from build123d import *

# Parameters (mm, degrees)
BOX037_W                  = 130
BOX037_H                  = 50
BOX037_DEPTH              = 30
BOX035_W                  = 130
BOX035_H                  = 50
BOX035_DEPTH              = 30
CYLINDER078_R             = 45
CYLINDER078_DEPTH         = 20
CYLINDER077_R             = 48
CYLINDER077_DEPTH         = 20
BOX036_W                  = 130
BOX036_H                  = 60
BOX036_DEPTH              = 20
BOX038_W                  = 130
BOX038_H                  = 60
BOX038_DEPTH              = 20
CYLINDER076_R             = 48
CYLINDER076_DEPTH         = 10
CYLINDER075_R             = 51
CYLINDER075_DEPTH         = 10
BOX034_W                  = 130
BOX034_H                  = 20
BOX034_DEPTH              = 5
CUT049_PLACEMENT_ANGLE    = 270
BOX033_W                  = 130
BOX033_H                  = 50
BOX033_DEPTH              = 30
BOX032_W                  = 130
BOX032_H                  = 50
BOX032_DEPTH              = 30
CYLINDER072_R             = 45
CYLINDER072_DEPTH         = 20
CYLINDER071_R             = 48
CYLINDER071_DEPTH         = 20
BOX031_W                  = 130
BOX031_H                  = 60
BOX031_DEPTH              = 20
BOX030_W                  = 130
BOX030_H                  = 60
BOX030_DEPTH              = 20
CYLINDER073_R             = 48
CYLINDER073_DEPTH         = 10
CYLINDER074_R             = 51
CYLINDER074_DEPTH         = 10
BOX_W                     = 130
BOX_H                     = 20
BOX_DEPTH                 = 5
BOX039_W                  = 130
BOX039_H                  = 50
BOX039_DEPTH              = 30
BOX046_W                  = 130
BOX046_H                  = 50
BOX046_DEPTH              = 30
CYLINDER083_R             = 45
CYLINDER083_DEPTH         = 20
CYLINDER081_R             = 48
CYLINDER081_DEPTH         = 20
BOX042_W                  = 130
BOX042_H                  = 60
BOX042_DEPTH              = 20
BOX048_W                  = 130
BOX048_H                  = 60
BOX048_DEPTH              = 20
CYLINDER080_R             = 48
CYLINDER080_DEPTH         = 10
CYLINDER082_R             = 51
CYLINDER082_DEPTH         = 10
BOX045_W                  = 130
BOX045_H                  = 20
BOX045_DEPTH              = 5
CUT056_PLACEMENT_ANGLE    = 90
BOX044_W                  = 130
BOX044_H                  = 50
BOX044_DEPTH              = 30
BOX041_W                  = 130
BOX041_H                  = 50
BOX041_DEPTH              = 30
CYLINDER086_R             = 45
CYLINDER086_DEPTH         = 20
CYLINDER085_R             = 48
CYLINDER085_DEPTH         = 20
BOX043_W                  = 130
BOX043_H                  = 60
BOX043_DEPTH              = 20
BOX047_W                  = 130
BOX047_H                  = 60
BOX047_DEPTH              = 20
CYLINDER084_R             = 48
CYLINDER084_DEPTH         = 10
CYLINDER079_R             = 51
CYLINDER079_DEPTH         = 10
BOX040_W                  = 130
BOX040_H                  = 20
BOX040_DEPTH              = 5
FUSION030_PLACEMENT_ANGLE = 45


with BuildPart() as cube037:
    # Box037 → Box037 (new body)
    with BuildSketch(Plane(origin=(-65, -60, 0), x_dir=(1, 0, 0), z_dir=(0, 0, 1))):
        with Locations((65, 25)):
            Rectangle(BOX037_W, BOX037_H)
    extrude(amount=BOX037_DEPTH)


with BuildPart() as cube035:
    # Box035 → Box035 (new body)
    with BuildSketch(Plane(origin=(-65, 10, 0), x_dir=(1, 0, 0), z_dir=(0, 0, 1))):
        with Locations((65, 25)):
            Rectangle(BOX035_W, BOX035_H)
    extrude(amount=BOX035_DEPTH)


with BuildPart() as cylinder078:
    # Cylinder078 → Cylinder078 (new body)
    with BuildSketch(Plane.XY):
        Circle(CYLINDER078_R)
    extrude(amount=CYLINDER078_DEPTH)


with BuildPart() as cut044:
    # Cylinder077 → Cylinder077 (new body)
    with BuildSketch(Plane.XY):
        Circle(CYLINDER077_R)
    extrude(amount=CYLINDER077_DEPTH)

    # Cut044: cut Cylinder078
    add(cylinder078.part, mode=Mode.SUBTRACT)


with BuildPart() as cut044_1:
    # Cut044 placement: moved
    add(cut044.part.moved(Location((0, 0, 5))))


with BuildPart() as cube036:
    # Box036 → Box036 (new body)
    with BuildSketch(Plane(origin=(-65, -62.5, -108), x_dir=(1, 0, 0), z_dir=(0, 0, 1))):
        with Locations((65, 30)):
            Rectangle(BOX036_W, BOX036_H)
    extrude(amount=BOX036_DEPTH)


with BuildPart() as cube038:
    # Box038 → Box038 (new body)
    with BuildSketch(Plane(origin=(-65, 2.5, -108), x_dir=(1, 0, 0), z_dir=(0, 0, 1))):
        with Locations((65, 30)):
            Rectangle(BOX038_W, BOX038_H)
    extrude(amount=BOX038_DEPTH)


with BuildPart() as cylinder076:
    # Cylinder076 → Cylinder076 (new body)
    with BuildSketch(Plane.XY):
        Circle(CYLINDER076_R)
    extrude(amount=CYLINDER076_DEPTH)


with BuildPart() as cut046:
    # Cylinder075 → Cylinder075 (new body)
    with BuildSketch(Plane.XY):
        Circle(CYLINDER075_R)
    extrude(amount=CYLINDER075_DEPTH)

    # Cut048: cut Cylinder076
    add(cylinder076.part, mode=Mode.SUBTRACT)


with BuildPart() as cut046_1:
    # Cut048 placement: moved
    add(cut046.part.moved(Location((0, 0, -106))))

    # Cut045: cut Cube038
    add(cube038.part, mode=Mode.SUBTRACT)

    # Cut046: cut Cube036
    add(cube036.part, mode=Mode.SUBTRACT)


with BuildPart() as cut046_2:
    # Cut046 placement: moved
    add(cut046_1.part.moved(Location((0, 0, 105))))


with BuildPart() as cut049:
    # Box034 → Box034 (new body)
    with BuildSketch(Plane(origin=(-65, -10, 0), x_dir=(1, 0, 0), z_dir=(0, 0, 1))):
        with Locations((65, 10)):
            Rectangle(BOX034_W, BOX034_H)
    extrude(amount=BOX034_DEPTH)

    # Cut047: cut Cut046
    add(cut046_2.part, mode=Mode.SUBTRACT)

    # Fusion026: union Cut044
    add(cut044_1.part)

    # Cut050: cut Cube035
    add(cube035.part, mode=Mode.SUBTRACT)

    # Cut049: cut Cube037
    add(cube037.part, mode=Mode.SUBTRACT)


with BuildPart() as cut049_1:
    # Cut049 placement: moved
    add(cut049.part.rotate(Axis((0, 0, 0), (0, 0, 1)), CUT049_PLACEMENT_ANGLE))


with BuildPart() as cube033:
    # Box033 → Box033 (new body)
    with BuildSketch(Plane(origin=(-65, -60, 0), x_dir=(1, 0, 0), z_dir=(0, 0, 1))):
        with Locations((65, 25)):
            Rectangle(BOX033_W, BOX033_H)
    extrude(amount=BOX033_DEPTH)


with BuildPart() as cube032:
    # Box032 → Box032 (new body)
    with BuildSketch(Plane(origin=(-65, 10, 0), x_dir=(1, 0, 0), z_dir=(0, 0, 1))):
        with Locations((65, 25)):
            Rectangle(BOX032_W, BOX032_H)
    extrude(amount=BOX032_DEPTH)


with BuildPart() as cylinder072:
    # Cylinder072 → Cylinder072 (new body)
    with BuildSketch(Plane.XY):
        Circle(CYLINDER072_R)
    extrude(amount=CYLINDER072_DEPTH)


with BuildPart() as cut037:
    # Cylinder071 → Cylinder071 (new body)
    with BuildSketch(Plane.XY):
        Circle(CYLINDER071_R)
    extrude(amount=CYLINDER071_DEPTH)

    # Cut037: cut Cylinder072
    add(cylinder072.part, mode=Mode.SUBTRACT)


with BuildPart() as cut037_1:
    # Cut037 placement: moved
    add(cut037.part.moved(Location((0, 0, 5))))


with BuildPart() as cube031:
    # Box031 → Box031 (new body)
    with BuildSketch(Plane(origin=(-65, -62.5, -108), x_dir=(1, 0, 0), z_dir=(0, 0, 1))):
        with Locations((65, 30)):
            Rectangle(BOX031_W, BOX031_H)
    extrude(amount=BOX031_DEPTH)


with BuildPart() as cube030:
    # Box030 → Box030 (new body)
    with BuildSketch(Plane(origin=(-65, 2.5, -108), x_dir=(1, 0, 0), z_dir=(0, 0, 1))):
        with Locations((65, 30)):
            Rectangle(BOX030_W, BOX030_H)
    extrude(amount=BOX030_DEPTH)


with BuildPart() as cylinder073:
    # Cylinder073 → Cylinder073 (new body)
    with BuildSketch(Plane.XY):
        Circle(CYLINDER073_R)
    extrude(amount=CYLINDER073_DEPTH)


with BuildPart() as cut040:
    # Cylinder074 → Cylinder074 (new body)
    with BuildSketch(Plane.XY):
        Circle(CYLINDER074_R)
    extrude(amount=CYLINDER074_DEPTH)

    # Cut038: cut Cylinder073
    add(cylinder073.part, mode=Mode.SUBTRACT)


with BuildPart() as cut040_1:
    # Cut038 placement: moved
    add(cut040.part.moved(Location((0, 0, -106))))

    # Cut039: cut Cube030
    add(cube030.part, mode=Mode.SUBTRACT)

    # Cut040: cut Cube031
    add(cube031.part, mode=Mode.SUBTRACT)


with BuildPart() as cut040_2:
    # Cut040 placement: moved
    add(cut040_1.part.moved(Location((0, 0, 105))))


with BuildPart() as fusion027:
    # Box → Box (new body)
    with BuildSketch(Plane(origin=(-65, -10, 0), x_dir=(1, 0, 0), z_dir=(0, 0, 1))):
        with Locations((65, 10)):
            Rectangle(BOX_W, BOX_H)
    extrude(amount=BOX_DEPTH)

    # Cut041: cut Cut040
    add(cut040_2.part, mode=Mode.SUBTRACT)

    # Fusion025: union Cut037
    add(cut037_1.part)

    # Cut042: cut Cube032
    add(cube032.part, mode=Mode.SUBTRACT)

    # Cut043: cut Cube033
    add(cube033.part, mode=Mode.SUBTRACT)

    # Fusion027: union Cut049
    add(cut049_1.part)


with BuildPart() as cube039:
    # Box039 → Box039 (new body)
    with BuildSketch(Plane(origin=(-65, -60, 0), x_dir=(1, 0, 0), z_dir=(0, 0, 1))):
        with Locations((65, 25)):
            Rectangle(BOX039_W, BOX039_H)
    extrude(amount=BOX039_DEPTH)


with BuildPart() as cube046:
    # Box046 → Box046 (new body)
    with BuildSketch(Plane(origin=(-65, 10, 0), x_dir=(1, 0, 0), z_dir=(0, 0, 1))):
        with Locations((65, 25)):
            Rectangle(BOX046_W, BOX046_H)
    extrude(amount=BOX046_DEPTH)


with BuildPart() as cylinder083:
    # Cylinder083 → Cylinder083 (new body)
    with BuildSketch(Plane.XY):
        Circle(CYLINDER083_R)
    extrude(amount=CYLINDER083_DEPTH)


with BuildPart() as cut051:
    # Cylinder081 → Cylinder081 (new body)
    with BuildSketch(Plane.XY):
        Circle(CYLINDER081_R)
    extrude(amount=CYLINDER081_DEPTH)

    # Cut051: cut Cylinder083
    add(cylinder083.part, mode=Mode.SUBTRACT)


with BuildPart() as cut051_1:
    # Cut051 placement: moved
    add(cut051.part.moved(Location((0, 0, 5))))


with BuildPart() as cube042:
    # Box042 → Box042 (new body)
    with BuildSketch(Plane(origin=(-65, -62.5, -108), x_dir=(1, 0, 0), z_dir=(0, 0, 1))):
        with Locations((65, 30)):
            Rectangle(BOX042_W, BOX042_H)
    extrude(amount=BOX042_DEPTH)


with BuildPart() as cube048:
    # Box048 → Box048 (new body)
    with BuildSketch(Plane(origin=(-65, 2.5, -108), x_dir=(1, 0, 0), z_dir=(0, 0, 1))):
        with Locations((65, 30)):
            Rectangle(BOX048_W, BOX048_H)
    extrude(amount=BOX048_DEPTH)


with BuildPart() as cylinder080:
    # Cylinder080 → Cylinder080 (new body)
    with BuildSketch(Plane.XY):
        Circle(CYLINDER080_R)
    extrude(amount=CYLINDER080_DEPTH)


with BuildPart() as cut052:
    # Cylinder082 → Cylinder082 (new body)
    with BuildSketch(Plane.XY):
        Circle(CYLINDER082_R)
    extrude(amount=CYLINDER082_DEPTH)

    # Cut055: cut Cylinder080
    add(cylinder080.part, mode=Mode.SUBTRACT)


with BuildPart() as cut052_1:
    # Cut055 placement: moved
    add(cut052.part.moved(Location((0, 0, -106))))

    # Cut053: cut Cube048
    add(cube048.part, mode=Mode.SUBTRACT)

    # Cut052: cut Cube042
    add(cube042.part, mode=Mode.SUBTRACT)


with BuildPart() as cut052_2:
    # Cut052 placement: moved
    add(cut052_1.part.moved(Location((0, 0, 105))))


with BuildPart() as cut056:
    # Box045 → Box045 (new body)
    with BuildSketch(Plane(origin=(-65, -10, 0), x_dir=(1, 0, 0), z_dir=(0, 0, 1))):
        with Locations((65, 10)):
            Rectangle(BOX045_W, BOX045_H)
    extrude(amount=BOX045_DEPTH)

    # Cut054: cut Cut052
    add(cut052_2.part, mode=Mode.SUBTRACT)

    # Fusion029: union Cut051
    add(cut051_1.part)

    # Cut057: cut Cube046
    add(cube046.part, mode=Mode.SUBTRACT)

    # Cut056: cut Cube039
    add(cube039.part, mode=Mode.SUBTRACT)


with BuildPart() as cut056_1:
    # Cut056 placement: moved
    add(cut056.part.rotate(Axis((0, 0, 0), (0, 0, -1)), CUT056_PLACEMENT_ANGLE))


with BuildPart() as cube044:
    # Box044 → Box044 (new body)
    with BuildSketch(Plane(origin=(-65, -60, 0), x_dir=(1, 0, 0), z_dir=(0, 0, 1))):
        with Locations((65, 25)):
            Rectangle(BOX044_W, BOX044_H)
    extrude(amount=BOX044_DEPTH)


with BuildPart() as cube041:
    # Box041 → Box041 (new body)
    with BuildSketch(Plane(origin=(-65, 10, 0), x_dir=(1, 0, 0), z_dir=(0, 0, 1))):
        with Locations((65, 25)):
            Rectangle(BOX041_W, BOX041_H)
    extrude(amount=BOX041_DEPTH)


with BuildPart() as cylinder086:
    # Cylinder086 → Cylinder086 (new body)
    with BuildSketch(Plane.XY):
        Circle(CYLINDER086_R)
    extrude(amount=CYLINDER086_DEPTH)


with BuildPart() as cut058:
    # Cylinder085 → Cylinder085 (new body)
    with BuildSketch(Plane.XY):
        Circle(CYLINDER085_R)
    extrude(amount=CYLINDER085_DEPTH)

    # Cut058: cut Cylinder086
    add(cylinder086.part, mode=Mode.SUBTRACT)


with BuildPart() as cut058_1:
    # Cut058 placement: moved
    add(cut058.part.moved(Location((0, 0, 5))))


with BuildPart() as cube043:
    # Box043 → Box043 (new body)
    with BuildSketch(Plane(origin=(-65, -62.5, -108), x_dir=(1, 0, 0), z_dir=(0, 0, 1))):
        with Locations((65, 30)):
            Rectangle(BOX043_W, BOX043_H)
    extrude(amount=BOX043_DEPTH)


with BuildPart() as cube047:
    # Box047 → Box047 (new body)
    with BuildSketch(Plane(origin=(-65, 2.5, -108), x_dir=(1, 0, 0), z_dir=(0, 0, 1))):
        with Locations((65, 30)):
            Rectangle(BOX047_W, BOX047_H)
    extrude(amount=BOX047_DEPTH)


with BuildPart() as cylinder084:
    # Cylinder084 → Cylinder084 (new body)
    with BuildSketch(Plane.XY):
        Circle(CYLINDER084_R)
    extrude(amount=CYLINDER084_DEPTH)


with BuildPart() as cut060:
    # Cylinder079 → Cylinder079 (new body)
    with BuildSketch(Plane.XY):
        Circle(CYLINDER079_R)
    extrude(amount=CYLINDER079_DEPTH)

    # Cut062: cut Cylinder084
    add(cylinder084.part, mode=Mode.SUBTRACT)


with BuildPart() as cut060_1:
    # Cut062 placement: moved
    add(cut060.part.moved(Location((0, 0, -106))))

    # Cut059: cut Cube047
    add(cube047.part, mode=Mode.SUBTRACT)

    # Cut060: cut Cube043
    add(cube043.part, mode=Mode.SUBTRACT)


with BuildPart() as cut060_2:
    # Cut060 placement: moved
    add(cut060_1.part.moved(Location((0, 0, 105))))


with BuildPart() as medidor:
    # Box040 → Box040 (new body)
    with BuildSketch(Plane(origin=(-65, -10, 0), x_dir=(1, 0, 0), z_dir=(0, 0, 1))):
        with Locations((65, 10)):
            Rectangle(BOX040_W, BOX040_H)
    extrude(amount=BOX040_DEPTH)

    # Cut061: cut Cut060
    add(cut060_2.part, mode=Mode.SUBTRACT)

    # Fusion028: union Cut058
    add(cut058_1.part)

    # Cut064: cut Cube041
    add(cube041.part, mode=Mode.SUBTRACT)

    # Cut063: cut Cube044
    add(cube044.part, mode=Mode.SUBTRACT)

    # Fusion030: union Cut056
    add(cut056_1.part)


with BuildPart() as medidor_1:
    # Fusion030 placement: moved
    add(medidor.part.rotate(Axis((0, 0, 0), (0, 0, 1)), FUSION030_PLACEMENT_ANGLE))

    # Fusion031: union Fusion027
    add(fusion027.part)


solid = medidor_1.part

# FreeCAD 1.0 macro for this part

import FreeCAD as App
import Part
import Sketcher

doc = App.newDocument("Part")
body = doc.addObject("PartDesign::Body", "Body")

sketch1 = body.newObject("Sketcher::SketchObject", "Sketch")
sketch1.AttachmentSupport = (doc.getObject("XY_Plane"), [""])
sketch1.MapMode = "FlatFace"
sketch1.addGeometry([
    Part.LineSegment(App.Vector(-65, -10, 0), App.Vector(-65, -60, 0)),
    Part.LineSegment(App.Vector(-65, -60, 0), App.Vector(65, -60, 0)),
    Part.LineSegment(App.Vector(65, -60, 0), App.Vector(65, -10, 0)),
    Part.LineSegment(App.Vector(65, -10, 0), App.Vector(-65, -10, 0)),
], False)
sketch1.addConstraint([
    Sketcher.Constraint("Coincident", 0, 2, 1, 1),
    Sketcher.Constraint("Coincident", 1, 2, 2, 1),
    Sketcher.Constraint("Coincident", 2, 2, 3, 1),
    Sketcher.Constraint("Coincident", 3, 2, 0, 1),
    Sketcher.Constraint("Vertical", 0),
    Sketcher.Constraint("Horizontal", 1),
    Sketcher.Constraint("Vertical", 2),
    Sketcher.Constraint("Horizontal", 3),
    Sketcher.Constraint("DistanceX", 1, 1, 1, 2, 130.0),
    Sketcher.Constraint("DistanceY", 0, 2, 0, 1, 50.0),
    Sketcher.Constraint("DistanceX", 0, 2, -1, 1, 65.0),
    Sketcher.Constraint("DistanceY", 0, 2, -1, 1, 60.0),
])
pad1 = body.newObject("PartDesign::Pad", "Pad")
pad1.Profile = sketch1
pad1.Length = 30
body2 = doc.addObject("PartDesign::Body", "Body001")

sketch2 = body2.newObject("Sketcher::SketchObject", "Sketch001")
sketch2.AttachmentSupport = (doc.getObject("XY_Plane001"), [""])
sketch2.MapMode = "FlatFace"
sketch2.addGeometry([
    Part.LineSegment(App.Vector(-65, 60, 0), App.Vector(-65, 10, 0)),
    Part.LineSegment(App.Vector(-65, 10, 0), App.Vector(65, 10, 0)),
    Part.LineSegment(App.Vector(65, 10, 0), App.Vector(65, 60, 0)),
    Part.LineSegment(App.Vector(65, 60, 0), App.Vector(-65, 60, 0)),
], False)
sketch2.addConstraint([
    Sketcher.Constraint("Coincident", 0, 2, 1, 1),
    Sketcher.Constraint("Coincident", 1, 2, 2, 1),
    Sketcher.Constraint("Coincident", 2, 2, 3, 1),
    Sketcher.Constraint("Coincident", 3, 2, 0, 1),
    Sketcher.Constraint("Vertical", 0),
    Sketcher.Constraint("Horizontal", 1),
    Sketcher.Constraint("Vertical", 2),
    Sketcher.Constraint("Horizontal", 3),
    Sketcher.Constraint("DistanceX", 1, 1, 1, 2, 130.0),
    Sketcher.Constraint("DistanceY", 0, 2, 0, 1, 50.0),
    Sketcher.Constraint("DistanceX", 0, 2, -1, 1, 65.0),
    Sketcher.Constraint("DistanceY", -1, 1, 0, 2, 10.0),
])
pad2 = body2.newObject("PartDesign::Pad", "Pad001")
pad2.Profile = sketch2
pad2.Length = 30
body3 = doc.addObject("PartDesign::Body", "Body002")

sketch3 = body3.newObject("Sketcher::SketchObject", "Sketch002")
sketch3.AttachmentSupport = (doc.getObject("XY_Plane002"), [""])
sketch3.MapMode = "FlatFace"
sketch3.addGeometry(Part.Circle(App.Vector(0, 0, 0), App.Vector(0, 0, 1), 45), False)
sketch3.addConstraint([
    Sketcher.Constraint("Coincident", 0, 3, -1, 1),
    Sketcher.Constraint("Diameter", 0, 90.0),
])
pad3 = body3.newObject("PartDesign::Pad", "Pad002")
pad3.Profile = sketch3
pad3.Length = 20
body4 = doc.addObject("PartDesign::Body", "Body003")

sketch4 = body4.newObject("Sketcher::SketchObject", "Sketch003")
sketch4.AttachmentSupport = (doc.getObject("XY_Plane003"), [""])
sketch4.MapMode = "FlatFace"
sketch4.addGeometry(Part.Circle(App.Vector(0, 0, 0), App.Vector(0, 0, 1), 48), False)
sketch4.addConstraint([
    Sketcher.Constraint("Coincident", 0, 3, -1, 1),
    Sketcher.Constraint("Diameter", 0, 96.0),
])
pad4 = body4.newObject("PartDesign::Pad", "Pad003")
pad4.Profile = sketch4
pad4.Length = 20
doc.recompute()

boolean = body4.newObject("PartDesign::Boolean", "Boolean")
boolean.Type = "Cut"
boolean.addObjects([body3])
body5 = doc.addObject("PartDesign::Body", "Body004")
doc.recompute()

body4.Placement = App.Placement(App.Vector(0, 0, 5), App.Rotation(App.Vector(0, 0, 1), 0))
boolean2 = body5.newObject("PartDesign::Boolean", "Boolean001")
boolean2.Type = "Fuse"
boolean2.addObjects([body4])
body6 = doc.addObject("PartDesign::Body", "Body005")

sketch5 = body6.newObject("Sketcher::SketchObject", "Sketch004")
sketch5.AttachmentSupport = (doc.getObject("XY_Plane005"), [""])
sketch5.MapMode = "FlatFace"
sketch5.AttachmentOffset = App.Placement(App.Vector(0, 0, -108), App.Rotation())
sketch5.addGeometry([
    Part.LineSegment(App.Vector(-65, -2, 0), App.Vector(-65, -62, 0)),
    Part.LineSegment(App.Vector(-65, -62, 0), App.Vector(65, -62, 0)),
    Part.LineSegment(App.Vector(65, -62, 0), App.Vector(65, -2, 0)),
    Part.LineSegment(App.Vector(65, -2, 0), App.Vector(-65, -2, 0)),
], False)
sketch5.addConstraint([
    Sketcher.Constraint("Coincident", 0, 2, 1, 1),
    Sketcher.Constraint("Coincident", 1, 2, 2, 1),
    Sketcher.Constraint("Coincident", 2, 2, 3, 1),
    Sketcher.Constraint("Coincident", 3, 2, 0, 1),
    Sketcher.Constraint("Vertical", 0),
    Sketcher.Constraint("Horizontal", 1),
    Sketcher.Constraint("Vertical", 2),
    Sketcher.Constraint("Horizontal", 3),
    Sketcher.Constraint("DistanceX", 1, 1, 1, 2, 130.0),
    Sketcher.Constraint("DistanceY", 0, 2, 0, 1, 60.0),
    Sketcher.Constraint("DistanceX", 0, 2, -1, 1, 65.0),
    Sketcher.Constraint("DistanceY", 0, 2, -1, 1, 62.5),
])
pad5 = body6.newObject("PartDesign::Pad", "Pad004")
pad5.Profile = sketch5
pad5.Length = 20
body7 = doc.addObject("PartDesign::Body", "Body006")

sketch6 = body7.newObject("Sketcher::SketchObject", "Sketch005")
sketch6.AttachmentSupport = (doc.getObject("XY_Plane006"), [""])
sketch6.MapMode = "FlatFace"
sketch6.AttachmentOffset = App.Placement(App.Vector(0, 0, -108), App.Rotation())
sketch6.addGeometry([
    Part.LineSegment(App.Vector(-65, 62, 0), App.Vector(-65, 2, 0)),
    Part.LineSegment(App.Vector(-65, 2, 0), App.Vector(65, 2, 0)),
    Part.LineSegment(App.Vector(65, 2, 0), App.Vector(65, 62, 0)),
    Part.LineSegment(App.Vector(65, 62, 0), App.Vector(-65, 62, 0)),
], False)
sketch6.addConstraint([
    Sketcher.Constraint("Coincident", 0, 2, 1, 1),
    Sketcher.Constraint("Coincident", 1, 2, 2, 1),
    Sketcher.Constraint("Coincident", 2, 2, 3, 1),
    Sketcher.Constraint("Coincident", 3, 2, 0, 1),
    Sketcher.Constraint("Vertical", 0),
    Sketcher.Constraint("Horizontal", 1),
    Sketcher.Constraint("Vertical", 2),
    Sketcher.Constraint("Horizontal", 3),
    Sketcher.Constraint("DistanceX", 1, 1, 1, 2, 130.0),
    Sketcher.Constraint("DistanceY", 0, 2, 0, 1, 60.0),
    Sketcher.Constraint("DistanceX", 0, 2, -1, 1, 65.0),
    Sketcher.Constraint("DistanceY", -1, 1, 0, 2, 2.5),
])
pad6 = body7.newObject("PartDesign::Pad", "Pad005")
pad6.Profile = sketch6
pad6.Length = 20
body8 = doc.addObject("PartDesign::Body", "Body007")

sketch7 = body8.newObject("Sketcher::SketchObject", "Sketch006")
sketch7.AttachmentSupport = (doc.getObject("XY_Plane007"), [""])
sketch7.MapMode = "FlatFace"
sketch7.addGeometry(Part.Circle(App.Vector(0, 0, 0), App.Vector(0, 0, 1), 48), False)
sketch7.addConstraint([
    Sketcher.Constraint("Coincident", 0, 3, -1, 1),
    Sketcher.Constraint("Diameter", 0, 96.0),
])
pad7 = body8.newObject("PartDesign::Pad", "Pad006")
pad7.Profile = sketch7
pad7.Length = 10
body9 = doc.addObject("PartDesign::Body", "Body008")

sketch8 = body9.newObject("Sketcher::SketchObject", "Sketch007")
sketch8.AttachmentSupport = (doc.getObject("XY_Plane008"), [""])
sketch8.MapMode = "FlatFace"
sketch8.addGeometry(Part.Circle(App.Vector(0, 0, 0), App.Vector(0, 0, 1), 51), False)
sketch8.addConstraint([
    Sketcher.Constraint("Coincident", 0, 3, -1, 1),
    Sketcher.Constraint("Diameter", 0, 102.0),
])
pad8 = body9.newObject("PartDesign::Pad", "Pad007")
pad8.Profile = sketch8
pad8.Length = 10
doc.recompute()

boolean3 = body9.newObject("PartDesign::Boolean", "Boolean002")
boolean3.Type = "Cut"
boolean3.addObjects([body8])
body10 = doc.addObject("PartDesign::Body", "Body009")
body10.AllowCompound = True
doc.recompute()

body9.Placement = App.Placement(App.Vector(0, 0, -106), App.Rotation(App.Vector(0, 0, 1), 0))
boolean4 = body10.newObject("PartDesign::Boolean", "Boolean003")
boolean4.Type = "Fuse"
boolean4.addObjects([body9])
doc.recompute()

boolean5 = body10.newObject("PartDesign::Boolean", "Boolean004")
boolean5.Type = "Cut"
boolean5.addObjects([body7])
doc.recompute()

boolean6 = body10.newObject("PartDesign::Boolean", "Boolean005")
boolean6.Type = "Cut"
boolean6.addObjects([body6])
body11 = doc.addObject("PartDesign::Body", "Body010")
body11.AllowCompound = True
doc.recompute()

body10.Placement = App.Placement(App.Vector(0, 0, 105), App.Rotation(App.Vector(0, 0, 1), 0))
boolean7 = body11.newObject("PartDesign::Boolean", "Boolean006")
boolean7.Type = "Fuse"
boolean7.addObjects([body10])
body12 = doc.addObject("PartDesign::Body", "Body011")

sketch9 = body12.newObject("Sketcher::SketchObject", "Sketch008")
sketch9.AttachmentSupport = (doc.getObject("XY_Plane011"), [""])
sketch9.MapMode = "FlatFace"
sketch9.addGeometry([
    Part.LineSegment(App.Vector(-65, 10, 0), App.Vector(-65, -10, 0)),
    Part.LineSegment(App.Vector(-65, -10, 0), App.Vector(65, -10, 0)),
    Part.LineSegment(App.Vector(65, -10, 0), App.Vector(65, 10, 0)),
    Part.LineSegment(App.Vector(65, 10, 0), App.Vector(-65, 10, 0)),
], False)
sketch9.addConstraint([
    Sketcher.Constraint("Coincident", 0, 2, 1, 1),
    Sketcher.Constraint("Coincident", 1, 2, 2, 1),
    Sketcher.Constraint("Coincident", 2, 2, 3, 1),
    Sketcher.Constraint("Coincident", 3, 2, 0, 1),
    Sketcher.Constraint("Vertical", 0),
    Sketcher.Constraint("Horizontal", 1),
    Sketcher.Constraint("Vertical", 2),
    Sketcher.Constraint("Horizontal", 3),
    Sketcher.Constraint("Symmetric", 0, 2, 2, 2, -1, 1),
    Sketcher.Constraint("DistanceX", 1, 1, 1, 2, 130.0),
    Sketcher.Constraint("DistanceY", 0, 2, 0, 1, 20.0),
])
pad9 = body12.newObject("PartDesign::Pad", "Pad008")
pad9.Profile = sketch9
pad9.Length = 5
doc.recompute()

boolean8 = body12.newObject("PartDesign::Boolean", "Boolean007")
boolean8.Type = "Cut"
boolean8.addObjects([body11])
doc.recompute()

boolean9 = body12.newObject("PartDesign::Boolean", "Boolean008")
boolean9.Type = "Fuse"
boolean9.addObjects([body5])
doc.recompute()

boolean10 = body12.newObject("PartDesign::Boolean", "Boolean009")
boolean10.Type = "Cut"
boolean10.addObjects([body2])
doc.recompute()

boolean11 = body12.newObject("PartDesign::Boolean", "Boolean010")
boolean11.Type = "Cut"
boolean11.addObjects([body])
body13 = doc.addObject("PartDesign::Body", "Body012")
doc.recompute()

body12.Placement = App.Placement(App.Vector(0, 0, 0), App.Rotation(App.Vector(0, 0, 1), 270))
boolean12 = body13.newObject("PartDesign::Boolean", "Boolean011")
boolean12.Type = "Fuse"
boolean12.addObjects([body12])
body14 = doc.addObject("PartDesign::Body", "Body013")

sketch10 = body14.newObject("Sketcher::SketchObject", "Sketch009")
sketch10.AttachmentSupport = (doc.getObject("XY_Plane013"), [""])
sketch10.MapMode = "FlatFace"
sketch10.addGeometry([
    Part.LineSegment(App.Vector(-65, -10, 0), App.Vector(-65, -60, 0)),
    Part.LineSegment(App.Vector(-65, -60, 0), App.Vector(65, -60, 0)),
    Part.LineSegment(App.Vector(65, -60, 0), App.Vector(65, -10, 0)),
    Part.LineSegment(App.Vector(65, -10, 0), App.Vector(-65, -10, 0)),
], False)
sketch10.addConstraint([
    Sketcher.Constraint("Coincident", 0, 2, 1, 1),
    Sketcher.Constraint("Coincident", 1, 2, 2, 1),
    Sketcher.Constraint("Coincident", 2, 2, 3, 1),
    Sketcher.Constraint("Coincident", 3, 2, 0, 1),
    Sketcher.Constraint("Vertical", 0),
    Sketcher.Constraint("Horizontal", 1),
    Sketcher.Constraint("Vertical", 2),
    Sketcher.Constraint("Horizontal", 3),
    Sketcher.Constraint("DistanceX", 1, 1, 1, 2, 130.0),
    Sketcher.Constraint("DistanceY", 0, 2, 0, 1, 50.0),
    Sketcher.Constraint("DistanceX", 0, 2, -1, 1, 65.0),
    Sketcher.Constraint("DistanceY", 0, 2, -1, 1, 60.0),
])
pad10 = body14.newObject("PartDesign::Pad", "Pad009")
pad10.Profile = sketch10
pad10.Length = 30
body15 = doc.addObject("PartDesign::Body", "Body014")

sketch11 = body15.newObject("Sketcher::SketchObject", "Sketch010")
sketch11.AttachmentSupport = (doc.getObject("XY_Plane014"), [""])
sketch11.MapMode = "FlatFace"
sketch11.addGeometry([
    Part.LineSegment(App.Vector(-65, 60, 0), App.Vector(-65, 10, 0)),
    Part.LineSegment(App.Vector(-65, 10, 0), App.Vector(65, 10, 0)),
    Part.LineSegment(App.Vector(65, 10, 0), App.Vector(65, 60, 0)),
    Part.LineSegment(App.Vector(65, 60, 0), App.Vector(-65, 60, 0)),
], False)
sketch11.addConstraint([
    Sketcher.Constraint("Coincident", 0, 2, 1, 1),
    Sketcher.Constraint("Coincident", 1, 2, 2, 1),
    Sketcher.Constraint("Coincident", 2, 2, 3, 1),
    Sketcher.Constraint("Coincident", 3, 2, 0, 1),
    Sketcher.Constraint("Vertical", 0),
    Sketcher.Constraint("Horizontal", 1),
    Sketcher.Constraint("Vertical", 2),
    Sketcher.Constraint("Horizontal", 3),
    Sketcher.Constraint("DistanceX", 1, 1, 1, 2, 130.0),
    Sketcher.Constraint("DistanceY", 0, 2, 0, 1, 50.0),
    Sketcher.Constraint("DistanceX", 0, 2, -1, 1, 65.0),
    Sketcher.Constraint("DistanceY", -1, 1, 0, 2, 10.0),
])
pad11 = body15.newObject("PartDesign::Pad", "Pad010")
pad11.Profile = sketch11
pad11.Length = 30
body16 = doc.addObject("PartDesign::Body", "Body015")

sketch12 = body16.newObject("Sketcher::SketchObject", "Sketch011")
sketch12.AttachmentSupport = (doc.getObject("XY_Plane015"), [""])
sketch12.MapMode = "FlatFace"
sketch12.addGeometry(Part.Circle(App.Vector(0, 0, 0), App.Vector(0, 0, 1), 45), False)
sketch12.addConstraint([
    Sketcher.Constraint("Coincident", 0, 3, -1, 1),
    Sketcher.Constraint("Diameter", 0, 90.0),
])
pad12 = body16.newObject("PartDesign::Pad", "Pad011")
pad12.Profile = sketch12
pad12.Length = 20
body17 = doc.addObject("PartDesign::Body", "Body016")

sketch13 = body17.newObject("Sketcher::SketchObject", "Sketch012")
sketch13.AttachmentSupport = (doc.getObject("XY_Plane016"), [""])
sketch13.MapMode = "FlatFace"
sketch13.addGeometry(Part.Circle(App.Vector(0, 0, 0), App.Vector(0, 0, 1), 48), False)
sketch13.addConstraint([
    Sketcher.Constraint("Coincident", 0, 3, -1, 1),
    Sketcher.Constraint("Diameter", 0, 96.0),
])
pad13 = body17.newObject("PartDesign::Pad", "Pad012")
pad13.Profile = sketch13
pad13.Length = 20
doc.recompute()

boolean13 = body17.newObject("PartDesign::Boolean", "Boolean012")
boolean13.Type = "Cut"
boolean13.addObjects([body16])
body18 = doc.addObject("PartDesign::Body", "Body017")
doc.recompute()

body17.Placement = App.Placement(App.Vector(0, 0, 5), App.Rotation(App.Vector(0, 0, 1), 0))
boolean14 = body18.newObject("PartDesign::Boolean", "Boolean013")
boolean14.Type = "Fuse"
boolean14.addObjects([body17])
body19 = doc.addObject("PartDesign::Body", "Body018")

sketch14 = body19.newObject("Sketcher::SketchObject", "Sketch013")
sketch14.AttachmentSupport = (doc.getObject("XY_Plane018"), [""])
sketch14.MapMode = "FlatFace"
sketch14.AttachmentOffset = App.Placement(App.Vector(0, 0, -108), App.Rotation())
sketch14.addGeometry([
    Part.LineSegment(App.Vector(-65, -2, 0), App.Vector(-65, -62, 0)),
    Part.LineSegment(App.Vector(-65, -62, 0), App.Vector(65, -62, 0)),
    Part.LineSegment(App.Vector(65, -62, 0), App.Vector(65, -2, 0)),
    Part.LineSegment(App.Vector(65, -2, 0), App.Vector(-65, -2, 0)),
], False)
sketch14.addConstraint([
    Sketcher.Constraint("Coincident", 0, 2, 1, 1),
    Sketcher.Constraint("Coincident", 1, 2, 2, 1),
    Sketcher.Constraint("Coincident", 2, 2, 3, 1),
    Sketcher.Constraint("Coincident", 3, 2, 0, 1),
    Sketcher.Constraint("Vertical", 0),
    Sketcher.Constraint("Horizontal", 1),
    Sketcher.Constraint("Vertical", 2),
    Sketcher.Constraint("Horizontal", 3),
    Sketcher.Constraint("DistanceX", 1, 1, 1, 2, 130.0),
    Sketcher.Constraint("DistanceY", 0, 2, 0, 1, 60.0),
    Sketcher.Constraint("DistanceX", 0, 2, -1, 1, 65.0),
    Sketcher.Constraint("DistanceY", 0, 2, -1, 1, 62.5),
])
pad14 = body19.newObject("PartDesign::Pad", "Pad013")
pad14.Profile = sketch14
pad14.Length = 20
body20 = doc.addObject("PartDesign::Body", "Body019")

sketch15 = body20.newObject("Sketcher::SketchObject", "Sketch014")
sketch15.AttachmentSupport = (doc.getObject("XY_Plane019"), [""])
sketch15.MapMode = "FlatFace"
sketch15.AttachmentOffset = App.Placement(App.Vector(0, 0, -108), App.Rotation())
sketch15.addGeometry([
    Part.LineSegment(App.Vector(-65, 62, 0), App.Vector(-65, 2, 0)),
    Part.LineSegment(App.Vector(-65, 2, 0), App.Vector(65, 2, 0)),
    Part.LineSegment(App.Vector(65, 2, 0), App.Vector(65, 62, 0)),
    Part.LineSegment(App.Vector(65, 62, 0), App.Vector(-65, 62, 0)),
], False)
sketch15.addConstraint([
    Sketcher.Constraint("Coincident", 0, 2, 1, 1),
    Sketcher.Constraint("Coincident", 1, 2, 2, 1),
    Sketcher.Constraint("Coincident", 2, 2, 3, 1),
    Sketcher.Constraint("Coincident", 3, 2, 0, 1),
    Sketcher.Constraint("Vertical", 0),
    Sketcher.Constraint("Horizontal", 1),
    Sketcher.Constraint("Vertical", 2),
    Sketcher.Constraint("Horizontal", 3),
    Sketcher.Constraint("DistanceX", 1, 1, 1, 2, 130.0),
    Sketcher.Constraint("DistanceY", 0, 2, 0, 1, 60.0),
    Sketcher.Constraint("DistanceX", 0, 2, -1, 1, 65.0),
    Sketcher.Constraint("DistanceY", -1, 1, 0, 2, 2.5),
])
pad15 = body20.newObject("PartDesign::Pad", "Pad014")
pad15.Profile = sketch15
pad15.Length = 20
body21 = doc.addObject("PartDesign::Body", "Body020")

sketch16 = body21.newObject("Sketcher::SketchObject", "Sketch015")
sketch16.AttachmentSupport = (doc.getObject("XY_Plane020"), [""])
sketch16.MapMode = "FlatFace"
sketch16.addGeometry(Part.Circle(App.Vector(0, 0, 0), App.Vector(0, 0, 1), 48), False)
sketch16.addConstraint([
    Sketcher.Constraint("Coincident", 0, 3, -1, 1),
    Sketcher.Constraint("Diameter", 0, 96.0),
])
pad16 = body21.newObject("PartDesign::Pad", "Pad015")
pad16.Profile = sketch16
pad16.Length = 10
body22 = doc.addObject("PartDesign::Body", "Body021")

sketch17 = body22.newObject("Sketcher::SketchObject", "Sketch016")
sketch17.AttachmentSupport = (doc.getObject("XY_Plane021"), [""])
sketch17.MapMode = "FlatFace"
sketch17.addGeometry(Part.Circle(App.Vector(0, 0, 0), App.Vector(0, 0, 1), 51), False)
sketch17.addConstraint([
    Sketcher.Constraint("Coincident", 0, 3, -1, 1),
    Sketcher.Constraint("Diameter", 0, 102.0),
])
pad17 = body22.newObject("PartDesign::Pad", "Pad016")
pad17.Profile = sketch17
pad17.Length = 10
doc.recompute()

boolean15 = body22.newObject("PartDesign::Boolean", "Boolean014")
boolean15.Type = "Cut"
boolean15.addObjects([body21])
body23 = doc.addObject("PartDesign::Body", "Body022")
body23.AllowCompound = True
doc.recompute()

body22.Placement = App.Placement(App.Vector(0, 0, -106), App.Rotation(App.Vector(0, 0, 1), 0))
boolean16 = body23.newObject("PartDesign::Boolean", "Boolean015")
boolean16.Type = "Fuse"
boolean16.addObjects([body22])
doc.recompute()

boolean17 = body23.newObject("PartDesign::Boolean", "Boolean016")
boolean17.Type = "Cut"
boolean17.addObjects([body20])
doc.recompute()

boolean18 = body23.newObject("PartDesign::Boolean", "Boolean017")
boolean18.Type = "Cut"
boolean18.addObjects([body19])
body24 = doc.addObject("PartDesign::Body", "Body023")
body24.AllowCompound = True
doc.recompute()

body23.Placement = App.Placement(App.Vector(0, 0, 105), App.Rotation(App.Vector(0, 0, 1), 0))
boolean19 = body24.newObject("PartDesign::Boolean", "Boolean018")
boolean19.Type = "Fuse"
boolean19.addObjects([body23])
body25 = doc.addObject("PartDesign::Body", "Body024")

sketch18 = body25.newObject("Sketcher::SketchObject", "Sketch017")
sketch18.AttachmentSupport = (doc.getObject("XY_Plane024"), [""])
sketch18.MapMode = "FlatFace"
sketch18.addGeometry([
    Part.LineSegment(App.Vector(-65, 10, 0), App.Vector(-65, -10, 0)),
    Part.LineSegment(App.Vector(-65, -10, 0), App.Vector(65, -10, 0)),
    Part.LineSegment(App.Vector(65, -10, 0), App.Vector(65, 10, 0)),
    Part.LineSegment(App.Vector(65, 10, 0), App.Vector(-65, 10, 0)),
], False)
sketch18.addConstraint([
    Sketcher.Constraint("Coincident", 0, 2, 1, 1),
    Sketcher.Constraint("Coincident", 1, 2, 2, 1),
    Sketcher.Constraint("Coincident", 2, 2, 3, 1),
    Sketcher.Constraint("Coincident", 3, 2, 0, 1),
    Sketcher.Constraint("Vertical", 0),
    Sketcher.Constraint("Horizontal", 1),
    Sketcher.Constraint("Vertical", 2),
    Sketcher.Constraint("Horizontal", 3),
    Sketcher.Constraint("Symmetric", 0, 2, 2, 2, -1, 1),
    Sketcher.Constraint("DistanceX", 1, 1, 1, 2, 130.0),
    Sketcher.Constraint("DistanceY", 0, 2, 0, 1, 20.0),
])
pad18 = body25.newObject("PartDesign::Pad", "Pad017")
pad18.Profile = sketch18
pad18.Length = 5
doc.recompute()

boolean20 = body25.newObject("PartDesign::Boolean", "Boolean019")
boolean20.Type = "Cut"
boolean20.addObjects([body24])
doc.recompute()

boolean21 = body25.newObject("PartDesign::Boolean", "Boolean020")
boolean21.Type = "Fuse"
boolean21.addObjects([body18])
doc.recompute()

boolean22 = body25.newObject("PartDesign::Boolean", "Boolean021")
boolean22.Type = "Cut"
boolean22.addObjects([body15])
doc.recompute()

boolean23 = body25.newObject("PartDesign::Boolean", "Boolean022")
boolean23.Type = "Cut"
boolean23.addObjects([body14])
doc.recompute()

boolean24 = body25.newObject("PartDesign::Boolean", "Boolean023")
boolean24.Type = "Fuse"
boolean24.addObjects([body13])
body26 = doc.addObject("PartDesign::Body", "Body025")

sketch19 = body26.newObject("Sketcher::SketchObject", "Sketch018")
sketch19.AttachmentSupport = (doc.getObject("XY_Plane025"), [""])
sketch19.MapMode = "FlatFace"
sketch19.addGeometry([
    Part.LineSegment(App.Vector(-65, -10, 0), App.Vector(-65, -60, 0)),
    Part.LineSegment(App.Vector(-65, -60, 0), App.Vector(65, -60, 0)),
    Part.LineSegment(App.Vector(65, -60, 0), App.Vector(65, -10, 0)),
    Part.LineSegment(App.Vector(65, -10, 0), App.Vector(-65, -10, 0)),
], False)
sketch19.addConstraint([
    Sketcher.Constraint("Coincident", 0, 2, 1, 1),
    Sketcher.Constraint("Coincident", 1, 2, 2, 1),
    Sketcher.Constraint("Coincident", 2, 2, 3, 1),
    Sketcher.Constraint("Coincident", 3, 2, 0, 1),
    Sketcher.Constraint("Vertical", 0),
    Sketcher.Constraint("Horizontal", 1),
    Sketcher.Constraint("Vertical", 2),
    Sketcher.Constraint("Horizontal", 3),
    Sketcher.Constraint("DistanceX", 1, 1, 1, 2, 130.0),
    Sketcher.Constraint("DistanceY", 0, 2, 0, 1, 50.0),
    Sketcher.Constraint("DistanceX", 0, 2, -1, 1, 65.0),
    Sketcher.Constraint("DistanceY", 0, 2, -1, 1, 60.0),
])
pad19 = body26.newObject("PartDesign::Pad", "Pad018")
pad19.Profile = sketch19
pad19.Length = 30
body27 = doc.addObject("PartDesign::Body", "Body026")

sketch20 = body27.newObject("Sketcher::SketchObject", "Sketch019")
sketch20.AttachmentSupport = (doc.getObject("XY_Plane026"), [""])
sketch20.MapMode = "FlatFace"
sketch20.addGeometry([
    Part.LineSegment(App.Vector(-65, 60, 0), App.Vector(-65, 10, 0)),
    Part.LineSegment(App.Vector(-65, 10, 0), App.Vector(65, 10, 0)),
    Part.LineSegment(App.Vector(65, 10, 0), App.Vector(65, 60, 0)),
    Part.LineSegment(App.Vector(65, 60, 0), App.Vector(-65, 60, 0)),
], False)
sketch20.addConstraint([
    Sketcher.Constraint("Coincident", 0, 2, 1, 1),
    Sketcher.Constraint("Coincident", 1, 2, 2, 1),
    Sketcher.Constraint("Coincident", 2, 2, 3, 1),
    Sketcher.Constraint("Coincident", 3, 2, 0, 1),
    Sketcher.Constraint("Vertical", 0),
    Sketcher.Constraint("Horizontal", 1),
    Sketcher.Constraint("Vertical", 2),
    Sketcher.Constraint("Horizontal", 3),
    Sketcher.Constraint("DistanceX", 1, 1, 1, 2, 130.0),
    Sketcher.Constraint("DistanceY", 0, 2, 0, 1, 50.0),
    Sketcher.Constraint("DistanceX", 0, 2, -1, 1, 65.0),
    Sketcher.Constraint("DistanceY", -1, 1, 0, 2, 10.0),
])
pad20 = body27.newObject("PartDesign::Pad", "Pad019")
pad20.Profile = sketch20
pad20.Length = 30
body28 = doc.addObject("PartDesign::Body", "Body027")

sketch21 = body28.newObject("Sketcher::SketchObject", "Sketch020")
sketch21.AttachmentSupport = (doc.getObject("XY_Plane027"), [""])
sketch21.MapMode = "FlatFace"
sketch21.addGeometry(Part.Circle(App.Vector(0, 0, 0), App.Vector(0, 0, 1), 45), False)
sketch21.addConstraint([
    Sketcher.Constraint("Coincident", 0, 3, -1, 1),
    Sketcher.Constraint("Diameter", 0, 90.0),
])
pad21 = body28.newObject("PartDesign::Pad", "Pad020")
pad21.Profile = sketch21
pad21.Length = 20
body29 = doc.addObject("PartDesign::Body", "Body028")

sketch22 = body29.newObject("Sketcher::SketchObject", "Sketch021")
sketch22.AttachmentSupport = (doc.getObject("XY_Plane028"), [""])
sketch22.MapMode = "FlatFace"
sketch22.addGeometry(Part.Circle(App.Vector(0, 0, 0), App.Vector(0, 0, 1), 48), False)
sketch22.addConstraint([
    Sketcher.Constraint("Coincident", 0, 3, -1, 1),
    Sketcher.Constraint("Diameter", 0, 96.0),
])
pad22 = body29.newObject("PartDesign::Pad", "Pad021")
pad22.Profile = sketch22
pad22.Length = 20
doc.recompute()

boolean25 = body29.newObject("PartDesign::Boolean", "Boolean024")
boolean25.Type = "Cut"
boolean25.addObjects([body28])
body30 = doc.addObject("PartDesign::Body", "Body029")
doc.recompute()

body29.Placement = App.Placement(App.Vector(0, 0, 5), App.Rotation(App.Vector(0, 0, 1), 0))
boolean26 = body30.newObject("PartDesign::Boolean", "Boolean025")
boolean26.Type = "Fuse"
boolean26.addObjects([body29])
body31 = doc.addObject("PartDesign::Body", "Body030")

sketch23 = body31.newObject("Sketcher::SketchObject", "Sketch022")
sketch23.AttachmentSupport = (doc.getObject("XY_Plane030"), [""])
sketch23.MapMode = "FlatFace"
sketch23.AttachmentOffset = App.Placement(App.Vector(0, 0, -108), App.Rotation())
sketch23.addGeometry([
    Part.LineSegment(App.Vector(-65, -2, 0), App.Vector(-65, -62, 0)),
    Part.LineSegment(App.Vector(-65, -62, 0), App.Vector(65, -62, 0)),
    Part.LineSegment(App.Vector(65, -62, 0), App.Vector(65, -2, 0)),
    Part.LineSegment(App.Vector(65, -2, 0), App.Vector(-65, -2, 0)),
], False)
sketch23.addConstraint([
    Sketcher.Constraint("Coincident", 0, 2, 1, 1),
    Sketcher.Constraint("Coincident", 1, 2, 2, 1),
    Sketcher.Constraint("Coincident", 2, 2, 3, 1),
    Sketcher.Constraint("Coincident", 3, 2, 0, 1),
    Sketcher.Constraint("Vertical", 0),
    Sketcher.Constraint("Horizontal", 1),
    Sketcher.Constraint("Vertical", 2),
    Sketcher.Constraint("Horizontal", 3),
    Sketcher.Constraint("DistanceX", 1, 1, 1, 2, 130.0),
    Sketcher.Constraint("DistanceY", 0, 2, 0, 1, 60.0),
    Sketcher.Constraint("DistanceX", 0, 2, -1, 1, 65.0),
    Sketcher.Constraint("DistanceY", 0, 2, -1, 1, 62.5),
])
pad23 = body31.newObject("PartDesign::Pad", "Pad022")
pad23.Profile = sketch23
pad23.Length = 20
body32 = doc.addObject("PartDesign::Body", "Body031")

sketch24 = body32.newObject("Sketcher::SketchObject", "Sketch023")
sketch24.AttachmentSupport = (doc.getObject("XY_Plane031"), [""])
sketch24.MapMode = "FlatFace"
sketch24.AttachmentOffset = App.Placement(App.Vector(0, 0, -108), App.Rotation())
sketch24.addGeometry([
    Part.LineSegment(App.Vector(-65, 62, 0), App.Vector(-65, 2, 0)),
    Part.LineSegment(App.Vector(-65, 2, 0), App.Vector(65, 2, 0)),
    Part.LineSegment(App.Vector(65, 2, 0), App.Vector(65, 62, 0)),
    Part.LineSegment(App.Vector(65, 62, 0), App.Vector(-65, 62, 0)),
], False)
sketch24.addConstraint([
    Sketcher.Constraint("Coincident", 0, 2, 1, 1),
    Sketcher.Constraint("Coincident", 1, 2, 2, 1),
    Sketcher.Constraint("Coincident", 2, 2, 3, 1),
    Sketcher.Constraint("Coincident", 3, 2, 0, 1),
    Sketcher.Constraint("Vertical", 0),
    Sketcher.Constraint("Horizontal", 1),
    Sketcher.Constraint("Vertical", 2),
    Sketcher.Constraint("Horizontal", 3),
    Sketcher.Constraint("DistanceX", 1, 1, 1, 2, 130.0),
    Sketcher.Constraint("DistanceY", 0, 2, 0, 1, 60.0),
    Sketcher.Constraint("DistanceX", 0, 2, -1, 1, 65.0),
    Sketcher.Constraint("DistanceY", -1, 1, 0, 2, 2.5),
])
pad24 = body32.newObject("PartDesign::Pad", "Pad023")
pad24.Profile = sketch24
pad24.Length = 20
body33 = doc.addObject("PartDesign::Body", "Body032")

sketch25 = body33.newObject("Sketcher::SketchObject", "Sketch024")
sketch25.AttachmentSupport = (doc.getObject("XY_Plane032"), [""])
sketch25.MapMode = "FlatFace"
sketch25.addGeometry(Part.Circle(App.Vector(0, 0, 0), App.Vector(0, 0, 1), 48), False)
sketch25.addConstraint([
    Sketcher.Constraint("Coincident", 0, 3, -1, 1),
    Sketcher.Constraint("Diameter", 0, 96.0),
])
pad25 = body33.newObject("PartDesign::Pad", "Pad024")
pad25.Profile = sketch25
pad25.Length = 10
body34 = doc.addObject("PartDesign::Body", "Body033")

sketch26 = body34.newObject("Sketcher::SketchObject", "Sketch025")
sketch26.AttachmentSupport = (doc.getObject("XY_Plane033"), [""])
sketch26.MapMode = "FlatFace"
sketch26.addGeometry(Part.Circle(App.Vector(0, 0, 0), App.Vector(0, 0, 1), 51), False)
sketch26.addConstraint([
    Sketcher.Constraint("Coincident", 0, 3, -1, 1),
    Sketcher.Constraint("Diameter", 0, 102.0),
])
pad26 = body34.newObject("PartDesign::Pad", "Pad025")
pad26.Profile = sketch26
pad26.Length = 10
doc.recompute()

boolean27 = body34.newObject("PartDesign::Boolean", "Boolean026")
boolean27.Type = "Cut"
boolean27.addObjects([body33])
body35 = doc.addObject("PartDesign::Body", "Body034")
body35.AllowCompound = True
doc.recompute()

body34.Placement = App.Placement(App.Vector(0, 0, -106), App.Rotation(App.Vector(0, 0, 1), 0))
boolean28 = body35.newObject("PartDesign::Boolean", "Boolean027")
boolean28.Type = "Fuse"
boolean28.addObjects([body34])
doc.recompute()

boolean29 = body35.newObject("PartDesign::Boolean", "Boolean028")
boolean29.Type = "Cut"
boolean29.addObjects([body32])
doc.recompute()

boolean30 = body35.newObject("PartDesign::Boolean", "Boolean029")
boolean30.Type = "Cut"
boolean30.addObjects([body31])
body36 = doc.addObject("PartDesign::Body", "Body035")
body36.AllowCompound = True
doc.recompute()

body35.Placement = App.Placement(App.Vector(0, 0, 105), App.Rotation(App.Vector(0, 0, 1), 0))
boolean31 = body36.newObject("PartDesign::Boolean", "Boolean030")
boolean31.Type = "Fuse"
boolean31.addObjects([body35])
body37 = doc.addObject("PartDesign::Body", "Body036")

sketch27 = body37.newObject("Sketcher::SketchObject", "Sketch026")
sketch27.AttachmentSupport = (doc.getObject("XY_Plane036"), [""])
sketch27.MapMode = "FlatFace"
sketch27.addGeometry([
    Part.LineSegment(App.Vector(-65, 10, 0), App.Vector(-65, -10, 0)),
    Part.LineSegment(App.Vector(-65, -10, 0), App.Vector(65, -10, 0)),
    Part.LineSegment(App.Vector(65, -10, 0), App.Vector(65, 10, 0)),
    Part.LineSegment(App.Vector(65, 10, 0), App.Vector(-65, 10, 0)),
], False)
sketch27.addConstraint([
    Sketcher.Constraint("Coincident", 0, 2, 1, 1),
    Sketcher.Constraint("Coincident", 1, 2, 2, 1),
    Sketcher.Constraint("Coincident", 2, 2, 3, 1),
    Sketcher.Constraint("Coincident", 3, 2, 0, 1),
    Sketcher.Constraint("Vertical", 0),
    Sketcher.Constraint("Horizontal", 1),
    Sketcher.Constraint("Vertical", 2),
    Sketcher.Constraint("Horizontal", 3),
    Sketcher.Constraint("Symmetric", 0, 2, 2, 2, -1, 1),
    Sketcher.Constraint("DistanceX", 1, 1, 1, 2, 130.0),
    Sketcher.Constraint("DistanceY", 0, 2, 0, 1, 20.0),
])
pad27 = body37.newObject("PartDesign::Pad", "Pad026")
pad27.Profile = sketch27
pad27.Length = 5
doc.recompute()

boolean32 = body37.newObject("PartDesign::Boolean", "Boolean031")
boolean32.Type = "Cut"
boolean32.addObjects([body36])
doc.recompute()

boolean33 = body37.newObject("PartDesign::Boolean", "Boolean032")
boolean33.Type = "Fuse"
boolean33.addObjects([body30])
doc.recompute()

boolean34 = body37.newObject("PartDesign::Boolean", "Boolean033")
boolean34.Type = "Cut"
boolean34.addObjects([body27])
doc.recompute()

boolean35 = body37.newObject("PartDesign::Boolean", "Boolean034")
boolean35.Type = "Cut"
boolean35.addObjects([body26])
body38 = doc.addObject("PartDesign::Body", "Body037")
doc.recompute()

body37.Placement = App.Placement(App.Vector(0, 0, 0), App.Rotation(App.Vector(0, 0, -1), 90))
boolean36 = body38.newObject("PartDesign::Boolean", "Boolean035")
boolean36.Type = "Fuse"
boolean36.addObjects([body37])
body39 = doc.addObject("PartDesign::Body", "Body038")

sketch28 = body39.newObject("Sketcher::SketchObject", "Sketch027")
sketch28.AttachmentSupport = (doc.getObject("XY_Plane038"), [""])
sketch28.MapMode = "FlatFace"
sketch28.addGeometry([
    Part.LineSegment(App.Vector(-65, -10, 0), App.Vector(-65, -60, 0)),
    Part.LineSegment(App.Vector(-65, -60, 0), App.Vector(65, -60, 0)),
    Part.LineSegment(App.Vector(65, -60, 0), App.Vector(65, -10, 0)),
    Part.LineSegment(App.Vector(65, -10, 0), App.Vector(-65, -10, 0)),
], False)
sketch28.addConstraint([
    Sketcher.Constraint("Coincident", 0, 2, 1, 1),
    Sketcher.Constraint("Coincident", 1, 2, 2, 1),
    Sketcher.Constraint("Coincident", 2, 2, 3, 1),
    Sketcher.Constraint("Coincident", 3, 2, 0, 1),
    Sketcher.Constraint("Vertical", 0),
    Sketcher.Constraint("Horizontal", 1),
    Sketcher.Constraint("Vertical", 2),
    Sketcher.Constraint("Horizontal", 3),
    Sketcher.Constraint("DistanceX", 1, 1, 1, 2, 130.0),
    Sketcher.Constraint("DistanceY", 0, 2, 0, 1, 50.0),
    Sketcher.Constraint("DistanceX", 0, 2, -1, 1, 65.0),
    Sketcher.Constraint("DistanceY", 0, 2, -1, 1, 60.0),
])
pad28 = body39.newObject("PartDesign::Pad", "Pad027")
pad28.Profile = sketch28
pad28.Length = 30
body40 = doc.addObject("PartDesign::Body", "Body039")

sketch29 = body40.newObject("Sketcher::SketchObject", "Sketch028")
sketch29.AttachmentSupport = (doc.getObject("XY_Plane039"), [""])
sketch29.MapMode = "FlatFace"
sketch29.addGeometry([
    Part.LineSegment(App.Vector(-65, 60, 0), App.Vector(-65, 10, 0)),
    Part.LineSegment(App.Vector(-65, 10, 0), App.Vector(65, 10, 0)),
    Part.LineSegment(App.Vector(65, 10, 0), App.Vector(65, 60, 0)),
    Part.LineSegment(App.Vector(65, 60, 0), App.Vector(-65, 60, 0)),
], False)
sketch29.addConstraint([
    Sketcher.Constraint("Coincident", 0, 2, 1, 1),
    Sketcher.Constraint("Coincident", 1, 2, 2, 1),
    Sketcher.Constraint("Coincident", 2, 2, 3, 1),
    Sketcher.Constraint("Coincident", 3, 2, 0, 1),
    Sketcher.Constraint("Vertical", 0),
    Sketcher.Constraint("Horizontal", 1),
    Sketcher.Constraint("Vertical", 2),
    Sketcher.Constraint("Horizontal", 3),
    Sketcher.Constraint("DistanceX", 1, 1, 1, 2, 130.0),
    Sketcher.Constraint("DistanceY", 0, 2, 0, 1, 50.0),
    Sketcher.Constraint("DistanceX", 0, 2, -1, 1, 65.0),
    Sketcher.Constraint("DistanceY", -1, 1, 0, 2, 10.0),
])
pad29 = body40.newObject("PartDesign::Pad", "Pad028")
pad29.Profile = sketch29
pad29.Length = 30
body41 = doc.addObject("PartDesign::Body", "Body040")

sketch30 = body41.newObject("Sketcher::SketchObject", "Sketch029")
sketch30.AttachmentSupport = (doc.getObject("XY_Plane040"), [""])
sketch30.MapMode = "FlatFace"
sketch30.addGeometry(Part.Circle(App.Vector(0, 0, 0), App.Vector(0, 0, 1), 45), False)
sketch30.addConstraint([
    Sketcher.Constraint("Coincident", 0, 3, -1, 1),
    Sketcher.Constraint("Diameter", 0, 90.0),
])
pad30 = body41.newObject("PartDesign::Pad", "Pad029")
pad30.Profile = sketch30
pad30.Length = 20
body42 = doc.addObject("PartDesign::Body", "Body041")

sketch31 = body42.newObject("Sketcher::SketchObject", "Sketch030")
sketch31.AttachmentSupport = (doc.getObject("XY_Plane041"), [""])
sketch31.MapMode = "FlatFace"
sketch31.addGeometry(Part.Circle(App.Vector(0, 0, 0), App.Vector(0, 0, 1), 48), False)
sketch31.addConstraint([
    Sketcher.Constraint("Coincident", 0, 3, -1, 1),
    Sketcher.Constraint("Diameter", 0, 96.0),
])
pad31 = body42.newObject("PartDesign::Pad", "Pad030")
pad31.Profile = sketch31
pad31.Length = 20
doc.recompute()

boolean37 = body42.newObject("PartDesign::Boolean", "Boolean036")
boolean37.Type = "Cut"
boolean37.addObjects([body41])
body43 = doc.addObject("PartDesign::Body", "Body042")
doc.recompute()

body42.Placement = App.Placement(App.Vector(0, 0, 5), App.Rotation(App.Vector(0, 0, 1), 0))
boolean38 = body43.newObject("PartDesign::Boolean", "Boolean037")
boolean38.Type = "Fuse"
boolean38.addObjects([body42])
body44 = doc.addObject("PartDesign::Body", "Body043")

sketch32 = body44.newObject("Sketcher::SketchObject", "Sketch031")
sketch32.AttachmentSupport = (doc.getObject("XY_Plane043"), [""])
sketch32.MapMode = "FlatFace"
sketch32.AttachmentOffset = App.Placement(App.Vector(0, 0, -108), App.Rotation())
sketch32.addGeometry([
    Part.LineSegment(App.Vector(-65, -2, 0), App.Vector(-65, -62, 0)),
    Part.LineSegment(App.Vector(-65, -62, 0), App.Vector(65, -62, 0)),
    Part.LineSegment(App.Vector(65, -62, 0), App.Vector(65, -2, 0)),
    Part.LineSegment(App.Vector(65, -2, 0), App.Vector(-65, -2, 0)),
], False)
sketch32.addConstraint([
    Sketcher.Constraint("Coincident", 0, 2, 1, 1),
    Sketcher.Constraint("Coincident", 1, 2, 2, 1),
    Sketcher.Constraint("Coincident", 2, 2, 3, 1),
    Sketcher.Constraint("Coincident", 3, 2, 0, 1),
    Sketcher.Constraint("Vertical", 0),
    Sketcher.Constraint("Horizontal", 1),
    Sketcher.Constraint("Vertical", 2),
    Sketcher.Constraint("Horizontal", 3),
    Sketcher.Constraint("DistanceX", 1, 1, 1, 2, 130.0),
    Sketcher.Constraint("DistanceY", 0, 2, 0, 1, 60.0),
    Sketcher.Constraint("DistanceX", 0, 2, -1, 1, 65.0),
    Sketcher.Constraint("DistanceY", 0, 2, -1, 1, 62.5),
])
pad32 = body44.newObject("PartDesign::Pad", "Pad031")
pad32.Profile = sketch32
pad32.Length = 20
body45 = doc.addObject("PartDesign::Body", "Body044")

sketch33 = body45.newObject("Sketcher::SketchObject", "Sketch032")
sketch33.AttachmentSupport = (doc.getObject("XY_Plane044"), [""])
sketch33.MapMode = "FlatFace"
sketch33.AttachmentOffset = App.Placement(App.Vector(0, 0, -108), App.Rotation())
sketch33.addGeometry([
    Part.LineSegment(App.Vector(-65, 62, 0), App.Vector(-65, 2, 0)),
    Part.LineSegment(App.Vector(-65, 2, 0), App.Vector(65, 2, 0)),
    Part.LineSegment(App.Vector(65, 2, 0), App.Vector(65, 62, 0)),
    Part.LineSegment(App.Vector(65, 62, 0), App.Vector(-65, 62, 0)),
], False)
sketch33.addConstraint([
    Sketcher.Constraint("Coincident", 0, 2, 1, 1),
    Sketcher.Constraint("Coincident", 1, 2, 2, 1),
    Sketcher.Constraint("Coincident", 2, 2, 3, 1),
    Sketcher.Constraint("Coincident", 3, 2, 0, 1),
    Sketcher.Constraint("Vertical", 0),
    Sketcher.Constraint("Horizontal", 1),
    Sketcher.Constraint("Vertical", 2),
    Sketcher.Constraint("Horizontal", 3),
    Sketcher.Constraint("DistanceX", 1, 1, 1, 2, 130.0),
    Sketcher.Constraint("DistanceY", 0, 2, 0, 1, 60.0),
    Sketcher.Constraint("DistanceX", 0, 2, -1, 1, 65.0),
    Sketcher.Constraint("DistanceY", -1, 1, 0, 2, 2.5),
])
pad33 = body45.newObject("PartDesign::Pad", "Pad032")
pad33.Profile = sketch33
pad33.Length = 20
body46 = doc.addObject("PartDesign::Body", "Body045")

sketch34 = body46.newObject("Sketcher::SketchObject", "Sketch033")
sketch34.AttachmentSupport = (doc.getObject("XY_Plane045"), [""])
sketch34.MapMode = "FlatFace"
sketch34.addGeometry(Part.Circle(App.Vector(0, 0, 0), App.Vector(0, 0, 1), 48), False)
sketch34.addConstraint([
    Sketcher.Constraint("Coincident", 0, 3, -1, 1),
    Sketcher.Constraint("Diameter", 0, 96.0),
])
pad34 = body46.newObject("PartDesign::Pad", "Pad033")
pad34.Profile = sketch34
pad34.Length = 10
body47 = doc.addObject("PartDesign::Body", "Body046")

sketch35 = body47.newObject("Sketcher::SketchObject", "Sketch034")
sketch35.AttachmentSupport = (doc.getObject("XY_Plane046"), [""])
sketch35.MapMode = "FlatFace"
sketch35.addGeometry(Part.Circle(App.Vector(0, 0, 0), App.Vector(0, 0, 1), 51), False)
sketch35.addConstraint([
    Sketcher.Constraint("Coincident", 0, 3, -1, 1),
    Sketcher.Constraint("Diameter", 0, 102.0),
])
pad35 = body47.newObject("PartDesign::Pad", "Pad034")
pad35.Profile = sketch35
pad35.Length = 10
doc.recompute()

boolean39 = body47.newObject("PartDesign::Boolean", "Boolean038")
boolean39.Type = "Cut"
boolean39.addObjects([body46])
body48 = doc.addObject("PartDesign::Body", "Body047")
body48.AllowCompound = True
doc.recompute()

body47.Placement = App.Placement(App.Vector(0, 0, -106), App.Rotation(App.Vector(0, 0, 1), 0))
boolean40 = body48.newObject("PartDesign::Boolean", "Boolean039")
boolean40.Type = "Fuse"
boolean40.addObjects([body47])
doc.recompute()

boolean41 = body48.newObject("PartDesign::Boolean", "Boolean040")
boolean41.Type = "Cut"
boolean41.addObjects([body45])
doc.recompute()

boolean42 = body48.newObject("PartDesign::Boolean", "Boolean041")
boolean42.Type = "Cut"
boolean42.addObjects([body44])
body49 = doc.addObject("PartDesign::Body", "Body048")
body49.AllowCompound = True
doc.recompute()

body48.Placement = App.Placement(App.Vector(0, 0, 105), App.Rotation(App.Vector(0, 0, 1), 0))
boolean43 = body49.newObject("PartDesign::Boolean", "Boolean042")
boolean43.Type = "Fuse"
boolean43.addObjects([body48])
body50 = doc.addObject("PartDesign::Body", "Body049")

sketch36 = body50.newObject("Sketcher::SketchObject", "Sketch035")
sketch36.AttachmentSupport = (doc.getObject("XY_Plane049"), [""])
sketch36.MapMode = "FlatFace"
sketch36.addGeometry([
    Part.LineSegment(App.Vector(-65, 10, 0), App.Vector(-65, -10, 0)),
    Part.LineSegment(App.Vector(-65, -10, 0), App.Vector(65, -10, 0)),
    Part.LineSegment(App.Vector(65, -10, 0), App.Vector(65, 10, 0)),
    Part.LineSegment(App.Vector(65, 10, 0), App.Vector(-65, 10, 0)),
], False)
sketch36.addConstraint([
    Sketcher.Constraint("Coincident", 0, 2, 1, 1),
    Sketcher.Constraint("Coincident", 1, 2, 2, 1),
    Sketcher.Constraint("Coincident", 2, 2, 3, 1),
    Sketcher.Constraint("Coincident", 3, 2, 0, 1),
    Sketcher.Constraint("Vertical", 0),
    Sketcher.Constraint("Horizontal", 1),
    Sketcher.Constraint("Vertical", 2),
    Sketcher.Constraint("Horizontal", 3),
    Sketcher.Constraint("Symmetric", 0, 2, 2, 2, -1, 1),
    Sketcher.Constraint("DistanceX", 1, 1, 1, 2, 130.0),
    Sketcher.Constraint("DistanceY", 0, 2, 0, 1, 20.0),
])
pad36 = body50.newObject("PartDesign::Pad", "Pad035")
pad36.Profile = sketch36
pad36.Length = 5
doc.recompute()

boolean44 = body50.newObject("PartDesign::Boolean", "Boolean043")
boolean44.Type = "Cut"
boolean44.addObjects([body49])
doc.recompute()

boolean45 = body50.newObject("PartDesign::Boolean", "Boolean044")
boolean45.Type = "Fuse"
boolean45.addObjects([body43])
doc.recompute()

boolean46 = body50.newObject("PartDesign::Boolean", "Boolean045")
boolean46.Type = "Cut"
boolean46.addObjects([body40])
doc.recompute()

boolean47 = body50.newObject("PartDesign::Boolean", "Boolean046")
boolean47.Type = "Cut"
boolean47.addObjects([body39])
doc.recompute()

boolean48 = body50.newObject("PartDesign::Boolean", "Boolean047")
boolean48.Type = "Fuse"
boolean48.addObjects([body38])
body51 = doc.addObject("PartDesign::Body", "Body050")
doc.recompute()

body50.Placement = App.Placement(App.Vector(0, 0, 0), App.Rotation(App.Vector(0, 0, 1), 45))
boolean49 = body51.newObject("PartDesign::Boolean", "Boolean048")
boolean49.Type = "Fuse"
boolean49.addObjects([body50])
doc.recompute()

boolean50 = body51.newObject("PartDesign::Boolean", "Boolean049")
boolean50.Type = "Fuse"
boolean50.addObjects([body25])

doc.recompute()
